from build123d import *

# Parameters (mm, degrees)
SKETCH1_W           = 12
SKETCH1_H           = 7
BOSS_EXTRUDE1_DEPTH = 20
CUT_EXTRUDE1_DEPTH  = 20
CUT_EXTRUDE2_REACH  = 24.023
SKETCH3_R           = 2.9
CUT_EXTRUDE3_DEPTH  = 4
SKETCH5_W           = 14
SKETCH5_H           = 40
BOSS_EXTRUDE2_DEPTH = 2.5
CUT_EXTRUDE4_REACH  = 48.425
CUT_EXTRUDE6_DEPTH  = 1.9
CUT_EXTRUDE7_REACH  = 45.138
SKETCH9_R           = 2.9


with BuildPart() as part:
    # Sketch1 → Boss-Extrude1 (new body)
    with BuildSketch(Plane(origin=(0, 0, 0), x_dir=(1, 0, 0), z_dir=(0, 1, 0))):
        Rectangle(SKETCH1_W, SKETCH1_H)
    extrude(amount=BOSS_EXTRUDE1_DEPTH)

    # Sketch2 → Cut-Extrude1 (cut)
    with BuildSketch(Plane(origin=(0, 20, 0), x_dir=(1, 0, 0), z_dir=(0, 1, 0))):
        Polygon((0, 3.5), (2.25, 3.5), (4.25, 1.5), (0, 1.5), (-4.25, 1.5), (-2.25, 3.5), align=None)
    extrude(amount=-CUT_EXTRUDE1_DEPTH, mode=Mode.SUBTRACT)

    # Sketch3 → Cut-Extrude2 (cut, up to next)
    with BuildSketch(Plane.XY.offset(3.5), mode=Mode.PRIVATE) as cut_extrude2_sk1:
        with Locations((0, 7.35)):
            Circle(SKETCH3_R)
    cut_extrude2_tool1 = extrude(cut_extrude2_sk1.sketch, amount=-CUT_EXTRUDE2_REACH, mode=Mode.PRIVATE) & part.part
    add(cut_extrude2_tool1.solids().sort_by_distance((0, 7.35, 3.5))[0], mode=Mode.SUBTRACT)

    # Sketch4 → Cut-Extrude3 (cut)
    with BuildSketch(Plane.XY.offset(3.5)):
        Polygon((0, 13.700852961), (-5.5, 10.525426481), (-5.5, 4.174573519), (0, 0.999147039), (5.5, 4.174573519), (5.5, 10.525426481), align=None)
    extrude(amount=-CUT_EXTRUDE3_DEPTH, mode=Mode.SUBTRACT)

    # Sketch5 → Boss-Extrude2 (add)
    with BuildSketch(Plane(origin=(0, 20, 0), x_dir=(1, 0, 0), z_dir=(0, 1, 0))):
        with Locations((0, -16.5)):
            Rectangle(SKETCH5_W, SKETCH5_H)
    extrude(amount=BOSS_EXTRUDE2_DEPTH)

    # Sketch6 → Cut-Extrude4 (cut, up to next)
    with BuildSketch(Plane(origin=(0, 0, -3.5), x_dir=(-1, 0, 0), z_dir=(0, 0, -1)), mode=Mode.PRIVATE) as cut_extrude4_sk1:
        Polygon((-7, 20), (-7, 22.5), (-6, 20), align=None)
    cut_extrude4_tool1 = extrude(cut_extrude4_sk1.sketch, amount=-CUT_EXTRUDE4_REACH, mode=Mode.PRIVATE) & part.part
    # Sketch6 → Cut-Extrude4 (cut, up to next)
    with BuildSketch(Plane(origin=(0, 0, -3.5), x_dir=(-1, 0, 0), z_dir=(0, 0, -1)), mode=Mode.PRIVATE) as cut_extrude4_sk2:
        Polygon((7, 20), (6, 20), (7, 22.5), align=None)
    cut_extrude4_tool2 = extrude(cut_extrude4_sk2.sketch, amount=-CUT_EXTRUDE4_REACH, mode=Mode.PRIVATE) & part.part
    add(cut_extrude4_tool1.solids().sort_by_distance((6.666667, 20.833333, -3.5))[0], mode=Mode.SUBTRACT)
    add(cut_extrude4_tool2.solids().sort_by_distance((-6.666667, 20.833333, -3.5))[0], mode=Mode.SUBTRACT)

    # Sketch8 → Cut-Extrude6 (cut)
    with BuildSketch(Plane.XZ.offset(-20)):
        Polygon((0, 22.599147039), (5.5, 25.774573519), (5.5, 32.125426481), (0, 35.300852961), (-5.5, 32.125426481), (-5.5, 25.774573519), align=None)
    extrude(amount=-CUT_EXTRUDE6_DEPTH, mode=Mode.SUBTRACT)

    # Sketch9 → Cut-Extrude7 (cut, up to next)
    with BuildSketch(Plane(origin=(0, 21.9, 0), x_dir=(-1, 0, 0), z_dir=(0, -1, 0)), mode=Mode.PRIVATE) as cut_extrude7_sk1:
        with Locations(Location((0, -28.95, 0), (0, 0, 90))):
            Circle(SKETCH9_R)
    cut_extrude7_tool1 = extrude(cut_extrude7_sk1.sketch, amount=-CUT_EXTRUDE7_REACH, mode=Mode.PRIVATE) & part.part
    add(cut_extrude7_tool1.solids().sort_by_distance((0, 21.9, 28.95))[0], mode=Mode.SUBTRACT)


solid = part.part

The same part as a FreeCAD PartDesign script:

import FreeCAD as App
import Part
import Sketcher
Q = App.Units.Quantity

doc = App.newDocument("Part")
body = doc.addObject("PartDesign::Body", "Body")

# Sketch on XZ plane
sketch1 = body.newObject("Sketcher::SketchObject", "Sketch")
sketch1.AttachmentSupport = (doc.getObject("XZ_Plane"), [""])
sketch1.MapMode = "FlatFace"
sketch1.addGeometry([
    Part.LineSegment(App.Vector(-6, -4, 0), App.Vector(-6, 4, 0)),
    Part.LineSegment(App.Vector(-6, 4, 0), App.Vector(6, 4, 0)),
    Part.LineSegment(App.Vector(6, 4, 0), App.Vector(6, -4, 0)),
    Part.LineSegment(App.Vector(6, -4, 0), App.Vector(-6, -4, 0)),
], False)
sketch1.addConstraint([
    Sketcher.Constraint("Coincident", 0, 2, 1, 1),
    Sketcher.Constraint("Coincident", 1, 2, 2, 1),
    Sketcher.Constraint("Coincident", 2, 2, 3, 1),
    Sketcher.Constraint("Coincident", 3, 2, 0, 1),
    Sketcher.Constraint("Vertical", 0),
    Sketcher.Constraint("Horizontal", 1),
    Sketcher.Constraint("Vertical", 2),
    Sketcher.Constraint("Horizontal", 3),
    Sketcher.Constraint("Symmetric", 0, 2, 2, 2, -1, 1),
    Sketcher.Constraint("DistanceX", 1, 1, 1, 2, 12.0),
    Sketcher.Constraint("DistanceY", 0, 1, 0, 2, 7.0),
])
pad1 = body.newObject("PartDesign::Pad", "Pad")
pad1.Profile = sketch1
pad1.Length = 20
pad1.Reversed = True

# Sketch on XZ plane
sketch2 = body.newObject("Sketcher::SketchObject", "Sketch001")
sketch2.AttachmentSupport = (doc.getObject("XZ_Plane"), [""])
sketch2.MapMode = "FlatFace"
sketch2.AttachmentOffset = App.Placement(App.Vector(0, 0, -20), App.Rotation())
sketch2.addGeometry([
    Part.LineSegment(App.Vector(2.2, -3.5, 0), App.Vector(-2.2, -3.5, 0)),
    Part.LineSegment(App.Vector(-2.2, -3.5, 0), App.Vector(-4.2, -1.5, 0)),
    Part.LineSegment(App.Vector(-4.2, -1.5, 0), App.Vector(4.2, -1.5, 0)),
    Part.LineSegment(App.Vector(4.2, -1.5, 0), App.Vector(2.2, -3.5, 0)),
], False)
sketch2.addConstraint([
    Sketcher.Constraint("Coincident", 0, 2, 1, 1),
    Sketcher.Constraint("Coincident", 1, 2, 2, 1),
    Sketcher.Constraint("Coincident", 2, 2, 3, 1),
    Sketcher.Constraint("Coincident", 3, 2, 0, 1),
    Sketcher.Constraint("Horizontal", 0),
    Sketcher.Constraint("Horizontal", 2),
    Sketcher.Constraint("Perpendicular", 1, 3),
    Sketcher.Constraint("Equal", 1, 3),
    Sketcher.Constraint("DistanceX", 0, 2, 0, 1, 4.5),
    Sketcher.Constraint("DistanceX", 2, 1, 2, 2, 8.5),
    Sketcher.Constraint("DistanceY", 0, 2, -1, 1, 3.5),
    Sketcher.Constraint("DistanceX", 0, 2, -1, 1, 2.25),
])
pocket1 = body.newObject("PartDesign::Pocket", "Pocket")
pocket1.Profile = sketch2
pocket1.Length = 20
pocket1.Reversed = True

# Sketch on XY plane
sketch3 = body.newObject("Sketcher::SketchObject", "Sketch002")
sketch3.AttachmentSupport = (doc.getObject("XY_Plane"), [""])
sketch3.MapMode = "FlatFace"
sketch3.AttachmentOffset = App.Placement(App.Vector(0, 0, 3.5), App.Rotation())
sketch3.addGeometry(Part.Circle(App.Vector(0, 7.3, 0), App.Vector(0, 0, 1), 2.9), False)
sketch3.addConstraint([
    Sketcher.Constraint("PointOnObject", 0, 3, -2),
    Sketcher.Constraint("Diameter", 0, 5.8),
    Sketcher.Constraint("DistanceY", -1, 1, 0, 3, 7.35),
])
pocket2 = body.newObject("PartDesign::Pocket", "Pocket001")
pocket2.Profile = sketch3
pocket2.Type = "UpToFirst"

# Sketch on XY plane
sketch4 = body.newObject("Sketcher::SketchObject", "Sketch003")
sketch4.AttachmentSupport = (doc.getObject("XY_Plane"), [""])
sketch4.MapMode = "FlatFace"
sketch4.AttachmentOffset = App.Placement(App.Vector(0, 0, 3.5), App.Rotation())
sketch4.addGeometry([
    Part.LineSegment(App.Vector(0, 14, 0), App.Vector(-6, 11, 0)),  # 0
    Part.LineSegment(App.Vector(-6, 11, 0), App.Vector(-6, 4, 0)),  # 1
    Part.LineSegment(App.Vector(-6, 4, 0), App.Vector(0, 1, 0)),  # 2
    Part.LineSegment(App.Vector(0, 1, 0), App.Vector(6, 4, 0)),  # 3
    Part.LineSegment(App.Vector(6, 4, 0), App.Vector(6, 11, 0)),  # 4
    Part.LineSegment(App.Vector(6, 11, 0), App.Vector(0, 14, 0)),  # 5
], False)
sketch4.addConstraint([
    Sketcher.Constraint("Coincident", 0, 2, 1, 1),
    Sketcher.Constraint("Coincident", 1, 2, 2, 1),
    Sketcher.Constraint("Coincident", 2, 2, 3, 1),
    Sketcher.Constraint("Coincident", 3, 2, 4, 1),
    Sketcher.Constraint("Coincident", 4, 2, 5, 1),
    Sketcher.Constraint("Coincident", 5, 2, 0, 1),
    Sketcher.Constraint("Vertical", 1),
    Sketcher.Constraint("Vertical", 4),
    Sketcher.Constraint("Symmetric", 1, 2, 3, 2, -2),
    Sketcher.Constraint("PointOnObject", 2, 2, -2),
    Sketcher.Constraint("PointOnObject", 5, 2, -2),
    Sketcher.Constraint("Parallel", 0, 3),
    Sketcher.Constraint("Parallel", 2, 5),
    Sketcher.Constraint("Angle", 0, Q("-150 deg")),
    Sketcher.Constraint("DistanceX", 1, 2, 3, 2, 11.0),
    Sketcher.Constraint("DistanceY", 1, 2, 1, 1, 6.350853),
    Sketcher.Constraint("DistanceY", -1, 1, 0, 2, 10.525426),
])
pocket3 = body.newObject("PartDesign::Pocket", "Pocket002")
pocket3.Profile = sketch4
pocket3.Length = 4

# Sketch on XZ plane
sketch5 = body.newObject("Sketcher::SketchObject", "Sketch004")
sketch5.AttachmentSupport = (doc.getObject("XZ_Plane"), [""])
sketch5.MapMode = "FlatFace"
sketch5.AttachmentOffset = App.Placement(App.Vector(0, 0, -20), App.Rotation())
sketch5.addGeometry([
    Part.LineSegment(App.Vector(-7, -4, 0), App.Vector(-7, 36, 0)),
    Part.LineSegment(App.Vector(-7, 36, 0), App.Vector(7, 36, 0)),
    Part.LineSegment(App.Vector(7, 36, 0), App.Vector(7, -4, 0)),
    Part.LineSegment(App.Vector(7, -4, 0), App.Vector(-7, -4, 0)),
], False)
sketch5.addConstraint([
    Sketcher.Constraint("Coincident", 0, 2, 1, 1),
    Sketcher.Constraint("Coincident", 1, 2, 2, 1),
    Sketcher.Constraint("Coincident", 2, 2, 3, 1),
    Sketcher.Constraint("Coincident", 3, 2, 0, 1),
    Sketcher.Constraint("Vertical", 0),
    Sketcher.Constraint("Horizontal", 1),
    Sketcher.Constraint("Vertical", 2),
    Sketcher.Constraint("Horizontal", 3),
    Sketcher.Constraint("DistanceX", 1, 1, 1, 2, 14.0),
    Sketcher.Constraint("DistanceY", 0, 1, 0, 2, 40.0),
    Sketcher.Constraint("DistanceX", 0, 2, -1, 1, 7.0),
    Sketcher.Constraint("DistanceY", -1, 1, 0, 2, 36.5),
])
pad2 = body.newObject("PartDesign::Pad", "Pad001")
pad2.Profile = sketch5
pad2.Length = 2.5
pad2.Reversed = True

# Sketch on XY plane
sketch6 = body.newObject("Sketcher::SketchObject", "Sketch005")
sketch6.AttachmentSupport = (doc.getObject("XY_Plane"), [""])
sketch6.MapMode = "FlatFace"
sketch6.AttachmentOffset = App.Placement(App.Vector(0, 0, -3.5), App.Rotation())
sketch6.addGeometry([
    Part.LineSegment(App.Vector(7, 22.5, 0), App.Vector(7, 20, 0)),
    Part.LineSegment(App.Vector(7, 20, 0), App.Vector(6, 20, 0)),
    Part.LineSegment(App.Vector(6, 20, 0), App.Vector(7, 22.5, 0)),
], False)
sketch6.addConstraint([
    Sketcher.Constraint("Coincident", 0, 2, 1, 1),
    Sketcher.Constraint("Coincident", 1, 2, 2, 1),
    Sketcher.Constraint("Coincident", 2, 2, 0, 1),
    Sketcher.Constraint("Vertical", 0),
    Sketcher.Constraint("Horizontal", 1),
    Sketcher.Constraint("DistanceX", 1, 2, 1, 1, 1.0),
    Sketcher.Constraint("DistanceY", 0, 2, 0, 1, 2.5),
    Sketcher.Constraint("DistanceX", -1, 1, 0, 2, 7.0),
    Sketcher.Constraint("DistanceY", -1, 1, 0, 2, 20.0),
])
pocket4 = body.newObject("PartDesign::Pocket", "Pocket003")
pocket4.Profile = sketch6
pocket4.Type = "UpToFirst"
pocket4.Reversed = True

# Sketch on XY plane
sketch7 = body.newObject("Sketcher::SketchObject", "Sketch006")
sketch7.AttachmentSupport = (doc.getObject("XY_Plane"), [""])
sketch7.MapMode = "FlatFace"
sketch7.AttachmentOffset = App.Placement(App.Vector(0, 0, -3.5), App.Rotation())
sketch7.addGeometry([
    Part.LineSegment(App.Vector(-6, 20, 0), App.Vector(-7, 20, 0)),
    Part.LineSegment(App.Vector(-7, 20, 0), App.Vector(-7, 22.5, 0)),
    Part.LineSegment(App.Vector(-7, 22.5, 0), App.Vector(-6, 20, 0)),
], False)
sketch7.addConstraint([
    Sketcher.Constraint("Coincident", 0, 2, 1, 1),
    Sketcher.Constraint("Coincident", 1, 2, 2, 1),
    Sketcher.Constraint("Coincident", 2, 2, 0, 1),
    Sketcher.Constraint("Horizontal", 0),
    Sketcher.Constraint("Vertical", 1),
    Sketcher.Constraint("DistanceX", 0, 2, 0, 1, 1.0),
    Sketcher.Constraint("DistanceY", 1, 1, 1, 2, 2.5),
    Sketcher.Constraint("DistanceX", 0, 2, -1, 1, 7.0),
    Sketcher.Constraint("DistanceY", -1, 1, 0, 2, 20.0),
])
pocket5 = body.newObject("PartDesign::Pocket", "Pocket004")
pocket5.Profile = sketch7
pocket5.Type = "UpToFirst"
pocket5.Reversed = True

# Sketch on XZ plane
sketch8 = body.newObject("Sketcher::SketchObject", "Sketch007")
sketch8.AttachmentSupport = (doc.getObject("XZ_Plane"), [""])
sketch8.MapMode = "FlatFace"
sketch8.AttachmentOffset = App.Placement(App.Vector(0, 0, -20), App.Rotation())
sketch8.addGeometry([
    Part.LineSegment(App.Vector(0, 23, 0), App.Vector(6, 26, 0)),  # 0
    Part.LineSegment(App.Vector(6, 26, 0), App.Vector(6, 32, 0)),  # 1
    Part.LineSegment(App.Vector(6, 32, 0), App.Vector(0, 35, 0)),  # 2
    Part.LineSegment(App.Vector(0, 35, 0), App.Vector(-6, 32, 0)),  # 3
    Part.LineSegment(App.Vector(-6, 32, 0), App.Vector(-6, 26, 0)),  # 4
    Part.LineSegment(App.Vector(-6, 26, 0), App.Vector(0, 23, 0)),  # 5
], False)
sketch8.addConstraint([
    Sketcher.Constraint("Coincident", 0, 2, 1, 1),
    Sketcher.Constraint("Coincident", 1, 2, 2, 1),
    Sketcher.Constraint("Coincident", 2, 2, 3, 1),
    Sketcher.Constraint("Coincident", 3, 2, 4, 1),
    Sketcher.Constraint("Coincident", 4, 2, 5, 1),
    Sketcher.Constraint("Coincident", 5, 2, 0, 1),
    Sketcher.Constraint("Vertical", 1),
    Sketcher.Constraint("Vertical", 4),
    Sketcher.Constraint("Symmetric", 1, 2, 3, 2, -2),
    Sketcher.Constraint("PointOnObject", 2, 2, -2),
    Sketcher.Constraint("PointOnObject", 5, 2, -2),
    Sketcher.Constraint("Parallel", 0, 3),
    Sketcher.Constraint("Parallel", 2, 5),
    Sketcher.Constraint("Angle", 0, Q("30 deg")),
    Sketcher.Constraint("DistanceX", 3, 2, 1, 2, 11.0),
    Sketcher.Constraint("DistanceY", 1, 1, 1, 2, 6.350853),
    Sketcher.Constraint("DistanceY", -1, 1, 0, 2, 25.774574),
])
pocket6 = body.newObject("PartDesign::Pocket", "Pocket005")
pocket6.Profile = sketch8
pocket6.Length = 1.9

# Sketch on XZ plane
sketch9 = body.newObject("Sketcher::SketchObject", "Sketch008")
sketch9.AttachmentSupport = (doc.getObject("XZ_Plane"), [""])
sketch9.MapMode = "FlatFace"
sketch9.AttachmentOffset = App.Placement(App.Vector(0, 0, -21.9), App.Rotation())
sketch9.addGeometry(Part.Circle(App.Vector(0, 28.9, 0), App.Vector(0, 0, 1), 2.9), False)
sketch9.addConstraint([
    Sketcher.Constraint("PointOnObject", 0, 3, -2),
    Sketcher.Constraint("Diameter", 0, 5.8),
    Sketcher.Constraint("DistanceY", -1, 1, 0, 3, 28.95),
])
pocket7 = body.newObject("PartDesign::Pocket", "Pocket006")
pocket7.Profile = sketch9
pocket7.Type = "UpToFirst"

doc.recompute()
